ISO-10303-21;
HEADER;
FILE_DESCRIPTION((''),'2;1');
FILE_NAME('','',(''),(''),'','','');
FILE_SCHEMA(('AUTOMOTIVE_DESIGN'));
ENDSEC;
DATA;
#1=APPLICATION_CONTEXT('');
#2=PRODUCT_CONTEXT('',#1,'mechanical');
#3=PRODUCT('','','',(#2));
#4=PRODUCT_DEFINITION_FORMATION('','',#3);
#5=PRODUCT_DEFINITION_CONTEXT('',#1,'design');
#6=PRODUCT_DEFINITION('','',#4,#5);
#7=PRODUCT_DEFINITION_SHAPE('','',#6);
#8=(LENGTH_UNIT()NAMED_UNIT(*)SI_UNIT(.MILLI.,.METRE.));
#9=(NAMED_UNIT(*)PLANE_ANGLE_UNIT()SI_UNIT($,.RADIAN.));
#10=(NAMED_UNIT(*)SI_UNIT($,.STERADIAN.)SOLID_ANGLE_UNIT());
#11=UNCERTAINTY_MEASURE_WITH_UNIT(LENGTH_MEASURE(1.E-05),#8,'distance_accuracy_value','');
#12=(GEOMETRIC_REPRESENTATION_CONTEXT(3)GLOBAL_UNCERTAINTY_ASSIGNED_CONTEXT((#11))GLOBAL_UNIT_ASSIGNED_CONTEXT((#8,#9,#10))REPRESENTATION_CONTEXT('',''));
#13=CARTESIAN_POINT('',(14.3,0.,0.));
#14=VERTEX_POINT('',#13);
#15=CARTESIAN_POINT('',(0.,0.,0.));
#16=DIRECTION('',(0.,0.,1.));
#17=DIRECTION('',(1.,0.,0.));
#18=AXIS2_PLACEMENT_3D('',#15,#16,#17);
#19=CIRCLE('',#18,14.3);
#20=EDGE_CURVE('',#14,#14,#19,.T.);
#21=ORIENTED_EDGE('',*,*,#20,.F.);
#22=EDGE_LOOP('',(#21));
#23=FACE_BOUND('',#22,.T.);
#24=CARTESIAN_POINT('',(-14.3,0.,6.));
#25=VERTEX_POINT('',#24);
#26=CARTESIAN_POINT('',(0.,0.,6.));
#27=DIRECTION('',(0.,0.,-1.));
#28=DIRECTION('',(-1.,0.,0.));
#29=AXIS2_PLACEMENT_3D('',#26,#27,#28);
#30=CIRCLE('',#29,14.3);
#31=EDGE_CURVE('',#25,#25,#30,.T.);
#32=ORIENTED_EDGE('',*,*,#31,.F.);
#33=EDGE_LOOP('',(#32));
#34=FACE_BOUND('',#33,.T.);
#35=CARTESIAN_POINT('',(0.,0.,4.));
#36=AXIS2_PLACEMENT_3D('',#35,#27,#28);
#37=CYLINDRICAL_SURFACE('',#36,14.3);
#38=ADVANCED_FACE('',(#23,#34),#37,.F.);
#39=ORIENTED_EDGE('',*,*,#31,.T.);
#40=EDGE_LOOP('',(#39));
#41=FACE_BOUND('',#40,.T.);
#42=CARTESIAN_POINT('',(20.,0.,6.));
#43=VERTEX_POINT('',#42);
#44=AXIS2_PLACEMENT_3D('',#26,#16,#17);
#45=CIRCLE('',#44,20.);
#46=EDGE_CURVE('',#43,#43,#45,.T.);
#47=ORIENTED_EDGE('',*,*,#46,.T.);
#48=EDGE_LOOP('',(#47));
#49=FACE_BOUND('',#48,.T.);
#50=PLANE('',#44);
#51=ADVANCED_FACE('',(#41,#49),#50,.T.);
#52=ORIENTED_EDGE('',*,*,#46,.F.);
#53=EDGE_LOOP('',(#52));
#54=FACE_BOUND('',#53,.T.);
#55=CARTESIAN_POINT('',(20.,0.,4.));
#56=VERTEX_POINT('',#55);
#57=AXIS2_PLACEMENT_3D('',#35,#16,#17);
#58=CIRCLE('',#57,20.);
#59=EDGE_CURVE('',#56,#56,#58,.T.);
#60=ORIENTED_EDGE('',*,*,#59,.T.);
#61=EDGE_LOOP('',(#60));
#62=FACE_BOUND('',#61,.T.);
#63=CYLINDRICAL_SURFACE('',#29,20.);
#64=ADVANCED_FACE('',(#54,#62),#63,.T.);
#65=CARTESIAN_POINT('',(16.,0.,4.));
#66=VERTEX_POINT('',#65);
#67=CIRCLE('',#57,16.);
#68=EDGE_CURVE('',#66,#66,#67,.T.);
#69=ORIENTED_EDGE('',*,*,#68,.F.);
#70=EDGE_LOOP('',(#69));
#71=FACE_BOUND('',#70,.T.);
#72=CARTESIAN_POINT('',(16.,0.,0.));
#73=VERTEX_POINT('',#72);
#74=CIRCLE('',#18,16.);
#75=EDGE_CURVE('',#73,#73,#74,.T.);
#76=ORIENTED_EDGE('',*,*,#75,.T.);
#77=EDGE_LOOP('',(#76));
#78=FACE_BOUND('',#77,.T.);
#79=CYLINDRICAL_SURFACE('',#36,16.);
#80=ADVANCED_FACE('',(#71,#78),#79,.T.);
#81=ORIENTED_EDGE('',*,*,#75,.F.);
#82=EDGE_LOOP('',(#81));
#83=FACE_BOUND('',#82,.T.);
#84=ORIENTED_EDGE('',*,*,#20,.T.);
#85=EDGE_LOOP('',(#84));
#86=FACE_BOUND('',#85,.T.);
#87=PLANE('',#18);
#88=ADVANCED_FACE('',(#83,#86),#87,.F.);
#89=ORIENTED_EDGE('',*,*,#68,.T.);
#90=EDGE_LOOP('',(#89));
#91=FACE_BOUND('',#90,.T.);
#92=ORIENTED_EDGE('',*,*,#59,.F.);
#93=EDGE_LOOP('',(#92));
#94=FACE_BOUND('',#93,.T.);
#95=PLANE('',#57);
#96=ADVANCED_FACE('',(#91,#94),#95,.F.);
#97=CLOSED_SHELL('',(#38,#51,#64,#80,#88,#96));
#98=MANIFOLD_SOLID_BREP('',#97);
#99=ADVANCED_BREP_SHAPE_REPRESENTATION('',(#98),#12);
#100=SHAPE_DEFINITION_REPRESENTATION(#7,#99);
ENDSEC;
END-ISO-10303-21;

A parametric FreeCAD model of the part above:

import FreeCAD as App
import Part
import Sketcher
from FreeCAD import Vector

doc = App.newDocument("Part")
body = doc.addObject("PartDesign::Body", "Body")

sketch1 = doc.addObject("Sketcher::SketchObject", "Sketch")
body.addObject(sketch1)
sketch1.AttachmentSupport = (doc.XY_Plane, [""])
sketch1.MapMode = "FlatFace"
sketch1.addGeometry(Part.Circle(Vector(0, 0, 0), Vector(0, 0, 1), 16), False)
sketch1.addGeometry(Part.Circle(Vector(0, 0, 0), Vector(0, 0, 1), 14), False)
sketch1.addConstraint(Sketcher.Constraint("Coincident", 0, 3, -1, 1))
sketch1.addConstraint(Sketcher.Constraint("Coincident", 1, 3, -1, 1))
sketch1.addConstraint(Sketcher.Constraint("Diameter", 0, 32.0))
sketch1.addConstraint(Sketcher.Constraint("Diameter", 1, 28.6))
pad1 = doc.addObject("PartDesign::Pad", "Pad")
body.addObject(pad1)
pad1.Profile = sketch1
pad1.Length = 4

sketch2 = doc.addObject("Sketcher::SketchObject", "Sketch001")
body.addObject(sketch2)
sketch2.AttachmentSupport = (doc.XY_Plane, [""])
sketch2.MapMode = "FlatFace"
sketch2.AttachmentOffset = App.Placement(Vector(0, 0, 4), App.Rotation())
sketch2.addGeometry(Part.Circle(Vector(0, 0, 0), Vector(0, 0, 1), 20), False)
sketch2.addConstraint(Sketcher.Constraint("Coincident", 0, 3, -1, 1))
sketch2.addConstraint(Sketcher.Constraint("Diameter", 0, 40.0))
pad2 = doc.addObject("PartDesign::Pad", "Pad001")
body.addObject(pad2)
pad2.Profile = sketch2
pad2.Length = 2

sketch3 = doc.addObject("Sketcher::SketchObject", "Sketch002")
body.addObject(sketch3)
sketch3.AttachmentSupport = (doc.XY_Plane, [""])
sketch3.MapMode = "FlatFace"
sketch3.AttachmentOffset = App.Placement(Vector(0, 0, 4), App.Rotation())
sketch3.addGeometry(Part.Circle(Vector(0, 0, 0), Vector(0, 0, 1), 14), False)
sketch3.addConstraint(Sketcher.Constraint("Coincident", 0, 3, -1, 1))
sketch3.addConstraint(Sketcher.Constraint("Diameter", 0, 28.6))
pocket1 = doc.addObject("PartDesign::Pocket", "Pocket")
body.addObject(pocket1)
pocket1.Profile = sketch3
pocket1.Length = 2
pocket1.Reversed = True

doc.recompute()
